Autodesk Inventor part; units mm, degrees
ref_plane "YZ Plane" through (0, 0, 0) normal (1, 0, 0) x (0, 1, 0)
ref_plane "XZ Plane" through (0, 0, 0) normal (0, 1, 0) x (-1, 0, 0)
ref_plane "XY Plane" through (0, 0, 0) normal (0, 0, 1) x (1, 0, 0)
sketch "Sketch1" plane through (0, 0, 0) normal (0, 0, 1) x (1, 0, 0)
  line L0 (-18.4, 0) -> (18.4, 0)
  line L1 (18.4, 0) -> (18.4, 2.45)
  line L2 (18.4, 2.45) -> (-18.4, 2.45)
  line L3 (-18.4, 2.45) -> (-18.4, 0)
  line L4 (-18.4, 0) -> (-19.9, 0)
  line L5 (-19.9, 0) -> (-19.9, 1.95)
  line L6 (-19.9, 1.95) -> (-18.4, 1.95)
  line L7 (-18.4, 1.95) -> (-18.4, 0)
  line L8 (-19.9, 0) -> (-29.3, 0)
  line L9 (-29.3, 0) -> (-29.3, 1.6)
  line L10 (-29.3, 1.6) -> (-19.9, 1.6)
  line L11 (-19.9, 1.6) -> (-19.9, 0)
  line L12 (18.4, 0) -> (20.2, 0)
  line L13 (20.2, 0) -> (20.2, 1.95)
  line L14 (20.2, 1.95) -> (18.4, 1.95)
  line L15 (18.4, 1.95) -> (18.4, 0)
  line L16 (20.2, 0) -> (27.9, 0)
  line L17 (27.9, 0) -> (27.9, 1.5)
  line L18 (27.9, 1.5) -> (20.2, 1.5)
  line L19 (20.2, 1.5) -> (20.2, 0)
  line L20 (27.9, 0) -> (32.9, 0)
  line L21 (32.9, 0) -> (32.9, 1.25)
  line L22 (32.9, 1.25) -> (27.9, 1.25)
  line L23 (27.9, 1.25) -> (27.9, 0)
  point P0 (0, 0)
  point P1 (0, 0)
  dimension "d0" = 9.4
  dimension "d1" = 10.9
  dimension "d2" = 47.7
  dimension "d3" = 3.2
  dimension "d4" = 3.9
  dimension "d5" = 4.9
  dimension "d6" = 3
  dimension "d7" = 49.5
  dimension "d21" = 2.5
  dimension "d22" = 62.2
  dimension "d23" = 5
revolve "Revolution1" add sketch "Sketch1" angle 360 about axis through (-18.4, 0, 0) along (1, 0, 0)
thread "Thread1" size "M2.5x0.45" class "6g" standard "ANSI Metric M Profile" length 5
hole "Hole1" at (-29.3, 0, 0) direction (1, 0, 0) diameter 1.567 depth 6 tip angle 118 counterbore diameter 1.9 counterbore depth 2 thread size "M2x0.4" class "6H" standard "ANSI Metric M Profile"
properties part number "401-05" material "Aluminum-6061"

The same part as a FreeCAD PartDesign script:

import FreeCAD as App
import Part
import Sketcher
Q = App.Units.Quantity


def add_polygon(sketch, points):
    """Adds a closed chain of lines whose ends are joined by coincident constraints."""
    first, n = sketch.GeometryCount, len(points)
    for a, b in zip(points, points[1:] + points[:1]):
        sketch.addGeometry(Part.LineSegment(App.Vector(*a, 0), App.Vector(*b, 0)), False)
    for i in range(n):
        sketch.addConstraint(Sketcher.Constraint("Coincident", first + i, 2, first + (i + 1) % n, 1))

doc = App.newDocument("Part")
body = doc.addObject("PartDesign::Body", "Body")

sketch1 = body.newObject("Sketcher::SketchObject", "Sketch")
sketch1.AttachmentSupport = (doc.getObject("XY_Plane"), [""])
sketch1.MapMode = "FlatFace"
add_polygon(sketch1, [(-18.4, 2.45), (-18.4, 1.95), (-19.9, 1.95), (-19.9, 1.6), (-29.3, 1.6), (-29.3, 0), (32.9, 0), (32.9, 1.25), (27.9, 1.25), (27.9, 1.5), (20.2, 1.5), (20.2, 1.95), (18.4, 1.95), (18.4, 2.45)])
sketch1.addConstraint([
    Sketcher.Constraint("Vertical", 0),
    Sketcher.Constraint("Horizontal", 1),
    Sketcher.Constraint("Vertical", 2),
    Sketcher.Constraint("Horizontal", 3),
    Sketcher.Constraint("Vertical", 4),
    Sketcher.Constraint("Horizontal", 5),
    Sketcher.Constraint("Vertical", 6),
    Sketcher.Constraint("Horizontal", 7),
    Sketcher.Constraint("Vertical", 8),
    Sketcher.Constraint("Horizontal", 9),
    Sketcher.Constraint("Vertical", 10),
    Sketcher.Constraint("Horizontal", 11),
    Sketcher.Constraint("Vertical", 12),
    Sketcher.Constraint("Horizontal", 13),
    Sketcher.Constraint("Symmetric", 0, 2, 11, 2, -2),
    Sketcher.Constraint("PointOnObject", 4, 2, -1),
    Sketcher.Constraint("DistanceX", 7, 2, 7, 1, Q("5 mm")),
    Sketcher.Constraint("DistanceX", 3, 2, 3, 1, Q("9.4 mm")),
    Sketcher.Constraint("DistanceX", 5, 1, 5, 2, Q("62.2 mm")),
    Sketcher.Constraint("DistanceX", 3, 2, 0, 2, Q("10.9 mm")),
    Sketcher.Constraint("DistanceX", 9, 2, 9, 1, Q("7.7 mm")),
    Sketcher.Constraint("DistanceX", 11, 2, 11, 1, Q("1.8 mm")),
    Sketcher.Constraint("DistanceY", 0, 2, 0, 1, Q("0.5 mm")),
    Sketcher.Constraint("DistanceY", 4, 2, 4, 1, Q("1.6 mm")),
    Sketcher.Constraint("DistanceY", 2, 2, 2, 1, Q("0.35 mm")),
    Sketcher.Constraint("DistanceY", 6, 1, 6, 2, Q("1.25 mm")),
    Sketcher.Constraint("DistanceY", 8, 1, 8, 2, Q("0.25 mm")),
])
revolution = body.newObject("PartDesign::Revolution", "Revolution")
revolution.Profile = sketch1
revolution.ReferenceAxis = (sketch1, ["H_Axis"])
revolution.Angle = 360

sketch2 = body.newObject("Sketcher::SketchObject", "Sketch001")
sketch2.AttachmentSupport = (doc.getObject("YZ_Plane"), [""])
sketch2.MapMode = "FlatFace"
sketch2.AttachmentOffset = App.Placement(App.Vector(0, 0, -29.3), App.Rotation())
sketch2.addGeometry(Part.Circle(App.Vector(0, 0, 0), App.Vector(0, 0, 1), 0.8), False)
sketch2.addConstraint([
    Sketcher.Constraint("Coincident", 0, 3, -1, 1),
    Sketcher.Constraint("Diameter", 0, Q("1.567 mm")),
])
doc.recompute()
hole = body.newObject("PartDesign::Hole", "Hole")
hole.Profile = sketch2
hole.ThreadType = "None"
hole.Diameter = 1.567
hole.DepthType = "Dimension"
hole.Depth = 6
hole.DrillPoint = "Angled"
hole.DrillPointAngle = 118
hole.HoleCutType = "Counterbore"
hole.HoleCutDiameter = 1.9
hole.HoleCutDepth = 2
hole.Reversed = True

doc.recompute()
